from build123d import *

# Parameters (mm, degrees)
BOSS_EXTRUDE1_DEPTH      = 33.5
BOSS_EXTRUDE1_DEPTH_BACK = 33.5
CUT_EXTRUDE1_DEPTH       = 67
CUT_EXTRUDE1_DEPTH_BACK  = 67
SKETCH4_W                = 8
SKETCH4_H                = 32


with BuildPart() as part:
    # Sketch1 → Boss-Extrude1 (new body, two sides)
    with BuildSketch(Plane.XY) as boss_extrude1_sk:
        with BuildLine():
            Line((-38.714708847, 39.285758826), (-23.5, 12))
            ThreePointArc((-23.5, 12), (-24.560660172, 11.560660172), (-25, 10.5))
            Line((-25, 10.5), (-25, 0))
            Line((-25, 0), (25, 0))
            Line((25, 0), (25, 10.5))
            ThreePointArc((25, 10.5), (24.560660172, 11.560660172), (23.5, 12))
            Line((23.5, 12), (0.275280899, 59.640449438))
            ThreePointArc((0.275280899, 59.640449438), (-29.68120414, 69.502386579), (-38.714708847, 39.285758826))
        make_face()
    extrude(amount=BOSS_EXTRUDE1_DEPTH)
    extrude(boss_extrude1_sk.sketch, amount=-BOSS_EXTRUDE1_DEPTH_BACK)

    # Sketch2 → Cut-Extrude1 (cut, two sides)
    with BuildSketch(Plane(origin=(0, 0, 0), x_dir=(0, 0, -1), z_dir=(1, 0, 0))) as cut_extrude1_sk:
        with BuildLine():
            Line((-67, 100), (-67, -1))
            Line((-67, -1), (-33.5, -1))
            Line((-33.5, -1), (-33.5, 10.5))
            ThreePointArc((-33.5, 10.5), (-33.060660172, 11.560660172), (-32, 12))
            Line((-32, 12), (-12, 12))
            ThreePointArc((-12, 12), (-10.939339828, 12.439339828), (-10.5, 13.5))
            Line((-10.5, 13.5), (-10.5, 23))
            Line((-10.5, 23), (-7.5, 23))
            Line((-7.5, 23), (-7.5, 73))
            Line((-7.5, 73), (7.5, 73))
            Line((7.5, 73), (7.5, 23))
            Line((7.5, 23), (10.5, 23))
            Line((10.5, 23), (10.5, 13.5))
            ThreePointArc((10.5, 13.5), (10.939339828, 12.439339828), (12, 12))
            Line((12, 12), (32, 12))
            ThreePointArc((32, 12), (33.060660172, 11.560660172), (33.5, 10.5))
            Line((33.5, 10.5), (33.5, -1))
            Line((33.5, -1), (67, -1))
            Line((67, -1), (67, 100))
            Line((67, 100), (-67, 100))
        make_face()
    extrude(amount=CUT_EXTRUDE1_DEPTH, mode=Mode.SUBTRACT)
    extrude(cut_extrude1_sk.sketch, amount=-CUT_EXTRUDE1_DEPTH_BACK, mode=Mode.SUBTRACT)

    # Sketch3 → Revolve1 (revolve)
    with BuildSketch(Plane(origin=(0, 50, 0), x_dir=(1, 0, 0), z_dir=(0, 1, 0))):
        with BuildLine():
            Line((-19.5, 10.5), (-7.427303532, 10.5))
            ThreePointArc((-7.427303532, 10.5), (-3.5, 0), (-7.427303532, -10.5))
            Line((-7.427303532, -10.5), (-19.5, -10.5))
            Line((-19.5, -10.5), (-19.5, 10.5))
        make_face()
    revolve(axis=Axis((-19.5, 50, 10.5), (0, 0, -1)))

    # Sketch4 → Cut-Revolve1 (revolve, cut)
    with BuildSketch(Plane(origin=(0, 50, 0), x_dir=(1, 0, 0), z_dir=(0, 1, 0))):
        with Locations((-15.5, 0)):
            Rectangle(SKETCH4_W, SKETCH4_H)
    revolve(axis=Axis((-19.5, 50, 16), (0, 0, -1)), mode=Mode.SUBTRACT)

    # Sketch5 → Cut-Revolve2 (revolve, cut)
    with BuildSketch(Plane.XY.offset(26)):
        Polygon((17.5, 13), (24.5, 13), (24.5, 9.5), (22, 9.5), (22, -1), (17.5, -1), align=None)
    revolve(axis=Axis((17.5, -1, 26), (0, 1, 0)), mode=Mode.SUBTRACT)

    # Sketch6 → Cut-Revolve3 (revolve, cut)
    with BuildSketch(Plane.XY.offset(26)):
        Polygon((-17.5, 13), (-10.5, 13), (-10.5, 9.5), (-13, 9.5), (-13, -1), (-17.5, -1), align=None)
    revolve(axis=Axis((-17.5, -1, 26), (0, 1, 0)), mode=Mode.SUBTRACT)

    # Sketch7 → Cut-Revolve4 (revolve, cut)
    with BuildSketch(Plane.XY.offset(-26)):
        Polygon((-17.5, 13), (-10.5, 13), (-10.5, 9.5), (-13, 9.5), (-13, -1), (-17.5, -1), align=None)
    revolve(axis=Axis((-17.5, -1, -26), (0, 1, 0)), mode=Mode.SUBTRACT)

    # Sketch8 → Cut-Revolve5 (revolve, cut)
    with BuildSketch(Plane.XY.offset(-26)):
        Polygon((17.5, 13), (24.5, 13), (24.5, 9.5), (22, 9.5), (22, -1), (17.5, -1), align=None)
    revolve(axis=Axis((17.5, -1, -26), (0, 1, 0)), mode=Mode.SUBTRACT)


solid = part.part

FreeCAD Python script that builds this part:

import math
import FreeCAD as App
import Part
import Sketcher

V = App.Vector

doc = App.newDocument("Part")
body = doc.addObject("PartDesign::Body", "Body")

# Sketch on XY plane
sketch1 = doc.addObject("Sketcher::SketchObject", "Sketch")
body.addObject(sketch1)
sketch1.AttachmentSupport = (doc.XY_Plane, [""])
sketch1.MapMode = "FlatFace"
sketch1.addGeometry([
    Part.LineSegment(V(-38.7, 39.3, 0), V(-23.5, 12, 0)),  # 0
    Part.ArcOfCircle(Part.Circle(V(-23.5, 10.5, 0), V(0, 0, 1), 1.5), math.radians(90), math.radians(180)),  # 1
    Part.LineSegment(V(-25, 10.5, 0), V(-25, 0, 0)),  # 2
    Part.LineSegment(V(-25, 0, 0), V(25, 0, 0)),  # 3
    Part.LineSegment(V(25, 0, 0), V(25, 10.5, 0)),  # 4
    Part.ArcOfCircle(Part.Circle(V(23.5, 10.5, 0), V(0, 0, 1), 1.5), math.radians(0), math.radians(90)),  # 5
    Part.LineSegment(V(23.5, 12, 0), V(0.3, 59.6, 0)),  # 6
    Part.ArcOfCircle(Part.Circle(V(-19.5, 50, 0), V(0, 0, 1), 22), math.radians(26), math.radians(209)),  # 7
], False)
sketch1.addConstraint([
    Sketcher.Constraint("Coincident", 0, 2, 1, 1),
    Sketcher.Constraint("Tangent", 1, 2, 2, 1),
    Sketcher.Constraint("Coincident", 2, 2, 3, 1),
    Sketcher.Constraint("Coincident", 3, 2, 4, 1),
    Sketcher.Constraint("Tangent", 4, 2, 5, 1),
    Sketcher.Constraint("Coincident", 5, 2, 6, 1),
    Sketcher.Constraint("Tangent", 6, 2, 7, 1),
    Sketcher.Constraint("Tangent", 7, 2, 0, 1),
    Sketcher.Constraint("Vertical", 2),
    Sketcher.Constraint("Horizontal", 3),
    Sketcher.Constraint("Vertical", 4),
    Sketcher.Constraint("Equal", 1, 5),
    Sketcher.Constraint("Symmetric", 2, 2, 3, 2, -1, 1),
    Sketcher.Constraint("Symmetric", 0, 2, 5, 2, -2),
    Sketcher.Constraint("Vertical", 1, 3, 0, 2),
    Sketcher.Constraint("Radius", 7, 22.0),
    Sketcher.Constraint("Radius", 1, 1.5),
    Sketcher.Constraint("DistanceX", 3, 1, 3, 2, 50.0),
    Sketcher.Constraint("Distance", 6, 53.0),
    Sketcher.Constraint("DistanceY", 2, 2, 2, 1, 10.5),
    Sketcher.Constraint("DistanceY", -1, 1, 7, 3, 50.0),
])
pad1 = doc.addObject("PartDesign::Pad", "Pad")
body.addObject(pad1)
pad1.Profile = sketch1
pad1.Type = "TwoLengths"
pad1.Length = 33.5
pad1.Length2 = 33.5

# Sketch on YZ plane
sketch2 = doc.addObject("Sketcher::SketchObject", "Sketch001")
body.addObject(sketch2)
sketch2.AttachmentSupport = (doc.YZ_Plane, [""])
sketch2.MapMode = "FlatFace"
sketch2.addGeometry([
    Part.LineSegment(V(100, 67, 0), V(-1, 67, 0)),  # 0
    Part.LineSegment(V(-1, 67, 0), V(-1, 33.5, 0)),  # 1
    Part.LineSegment(V(-1, 33.5, 0), V(10.5, 33.5, 0)),  # 2
    Part.ArcOfCircle(Part.Circle(V(10.5, 32, 0), V(0, 0, 1), 1.5), math.radians(0), math.radians(90)),  # 3
    Part.LineSegment(V(12, 32, 0), V(12, 12, 0)),  # 4
    Part.ArcOfCircle(Part.Circle(V(13.5, 12, 0), V(0, 0, 1), 1.5), math.radians(180), math.radians(270)),  # 5
    Part.LineSegment(V(13.5, 10.5, 0), V(23, 10.5, 0)),  # 6
    Part.LineSegment(V(23, 10.5, 0), V(23, 7.5, 0)),  # 7
    Part.LineSegment(V(23, 7.5, 0), V(73, 7.5, 0)),  # 8
    Part.LineSegment(V(73, 7.5, 0), V(73, -7.5, 0)),  # 9
    Part.LineSegment(V(73, -7.5, 0), V(23, -7.5, 0)),  # 10
    Part.LineSegment(V(23, -7.5, 0), V(23, -10.5, 0)),  # 11
    Part.LineSegment(V(23, -10.5, 0), V(13.5, -10.5, 0)),  # 12
    Part.ArcOfCircle(Part.Circle(V(13.5, -12, 0), V(0, 0, 1), 1.5), math.radians(90), math.radians(180)),  # 13
    Part.LineSegment(V(12, -12, 0), V(12, -32, 0)),  # 14
    Part.ArcOfCircle(Part.Circle(V(10.5, -32, 0), V(0, 0, 1), 1.5), math.radians(-90), math.radians(0)),  # 15
    Part.LineSegment(V(10.5, -33.5, 0), V(-1, -33.5, 0)),  # 16
    Part.LineSegment(V(-1, -33.5, 0), V(-1, -67, 0)),  # 17
    Part.LineSegment(V(-1, -67, 0), V(100, -67, 0)),  # 18
    Part.LineSegment(V(100, -67, 0), V(100, 67, 0)),  # 19
], False)
sketch2.addConstraint([
    Sketcher.Constraint("Coincident", 0, 2, 1, 1),
    Sketcher.Constraint("Coincident", 1, 2, 2, 1),
    Sketcher.Constraint("Tangent", 2, 2, 3, 2),
    Sketcher.Constraint("Tangent", 3, 1, 4, 1),
    Sketcher.Constraint("Tangent", 4, 2, 5, 1),
    Sketcher.Constraint("Tangent", 5, 2, 6, 1),
    Sketcher.Constraint("Coincident", 6, 2, 7, 1),
    Sketcher.Constraint("Coincident", 7, 2, 8, 1),
    Sketcher.Constraint("Coincident", 8, 2, 9, 1),
    Sketcher.Constraint("Coincident", 9, 2, 10, 1),
    Sketcher.Constraint("Coincident", 10, 2, 11, 1),
    Sketcher.Constraint("Coincident", 11, 2, 12, 1),
    Sketcher.Constraint("Tangent", 12, 2, 13, 1),
    Sketcher.Constraint("Tangent", 13, 2, 14, 1),
    Sketcher.Constraint("Tangent", 14, 2, 15, 2),
    Sketcher.Constraint("Tangent", 15, 1, 16, 1),
    Sketcher.Constraint("Coincident", 16, 2, 17, 1),
    Sketcher.Constraint("Coincident", 17, 2, 18, 1),
    Sketcher.Constraint("Coincident", 18, 2, 19, 1),
    Sketcher.Constraint("Coincident", 19, 2, 0, 1),
    Sketcher.Constraint("Horizontal", 0),
    Sketcher.Constraint("Vertical", 1),
    Sketcher.Constraint("Horizontal", 2),
    Sketcher.Constraint("Vertical", 4),
    Sketcher.Constraint("Horizontal", 6),
    Sketcher.Constraint("Vertical", 7),
    Sketcher.Constraint("Horizontal", 8),
    Sketcher.Constraint("Vertical", 9),
    Sketcher.Constraint("Horizontal", 10),
    Sketcher.Constraint("Vertical", 11),
    Sketcher.Constraint("Horizontal", 12),
    Sketcher.Constraint("Vertical", 14),
    Sketcher.Constraint("Horizontal", 16),
    Sketcher.Constraint("Vertical", 17),
    Sketcher.Constraint("Horizontal", 18),
    Sketcher.Constraint("Vertical", 19),
    Sketcher.Constraint("Equal", 3, 5),
    Sketcher.Constraint("Equal", 5, 13),
    Sketcher.Constraint("Equal", 13, 15),
    Sketcher.Constraint("Symmetric", 5, 3, 13, 3, -1),
    Sketcher.Constraint("Symmetric", 7, 2, 10, 2, -1),
    Sketcher.Constraint("Symmetric", 1, 2, 16, 2, -1),
    Sketcher.Constraint("Equal", 1, 17),
    Sketcher.Constraint("Radius", 3, 1.5),
    Sketcher.Constraint("DistanceX", 0, 2, 0, 1, 101.0),
    Sketcher.Constraint("DistanceX", 8, 1, 8, 2, 50.0),
    Sketcher.Constraint("DistanceY", 4, 2, 4, 1, 20.0),
    Sketcher.Constraint("DistanceY", 7, 2, 7, 1, 3.0),
    Sketcher.Constraint("DistanceY", 9, 2, 9, 1, 15.0),
    Sketcher.Constraint("DistanceY", 19, 1, 19, 2, 134.0),
    Sketcher.Constraint("DistanceX", 2, 1, 2, 2, 11.5),
    Sketcher.Constraint("DistanceX", 6, 1, 6, 2, 9.5),
    Sketcher.Constraint("DistanceX", 0, 2, -1, 1, 1.0),
])
pocket1 = doc.addObject("PartDesign::Pocket", "Pocket")
body.addObject(pocket1)
pocket1.Profile = sketch2
pocket1.Type = "ThroughAll"
pocket1.Midplane = True

# Sketch on XZ plane
sketch3 = doc.addObject("Sketcher::SketchObject", "Sketch002")
body.addObject(sketch3)
sketch3.AttachmentSupport = (doc.XZ_Plane, [""])
sketch3.MapMode = "FlatFace"
sketch3.AttachmentOffset = App.Placement(V(0, 0, -50), App.Rotation())
sketch3.addGeometry([
    Part.LineSegment(V(-7, -10, 0), V(-20, -10, 0)),
    Part.LineSegment(V(-20, -10, 0), V(-20, 10, 0)),
    Part.LineSegment(V(-20, 10, 0), V(-7, 10, 0)),
    Part.ArcOfCircle(Part.Circle(V(-20, 0, 0), V(0, 0, 1), 16), math.radians(-41), math.radians(41)),
], False)
sketch3.addGeometry(Part.LineSegment(V(-20, 10, 0), V(-20, -10, 0)), True)  # axis
sketch3.addConstraint([
    Sketcher.Constraint("Coincident", 0, 2, 1, 1),
    Sketcher.Constraint("Coincident", 1, 2, 2, 1),
    Sketcher.Constraint("Coincident", 2, 2, 3, 2),
    Sketcher.Constraint("Coincident", 3, 1, 0, 1),
    Sketcher.Constraint("Horizontal", 0),
    Sketcher.Constraint("Vertical", 1),
    Sketcher.Constraint("Horizontal", 2),
    Sketcher.Constraint("Vertical", 4),
    Sketcher.Constraint("Coincident", 4, 1, 1, 2),
    Sketcher.Constraint("Symmetric", 2, 2, 3, 1, -1),
    Sketcher.Constraint("Horizontal", 3, 1, 4, 2),
    Sketcher.Constraint("Vertical", 3, 3, 0, 2),
    Sketcher.Constraint("Radius", 3, 16.0),
    Sketcher.Constraint("DistanceY", 1, 1, 1, 2, 21.0),
    Sketcher.Constraint("DistanceX", 3, 3, -1, 1, 19.5),
])
revolution = doc.addObject("PartDesign::Revolution", "Revolution")
body.addObject(revolution)
revolution.Profile = sketch3
revolution.ReferenceAxis = (sketch3, ["Axis0"])
revolution.Angle = 360

# Sketch on XZ plane
sketch4 = doc.addObject("Sketcher::SketchObject", "Sketch003")
body.addObject(sketch4)
sketch4.AttachmentSupport = (doc.XZ_Plane, [""])
sketch4.MapMode = "FlatFace"
sketch4.AttachmentOffset = App.Placement(V(0, 0, -50), App.Rotation())
sketch4.addGeometry([
    Part.LineSegment(V(-20, -16, 0), V(-20, 16, 0)),
    Part.LineSegment(V(-20, 16, 0), V(-12, 16, 0)),
    Part.LineSegment(V(-12, 16, 0), V(-12, -16, 0)),
    Part.LineSegment(V(-12, -16, 0), V(-20, -16, 0)),
], False)
sketch4.addGeometry(Part.LineSegment(V(-20, 16, 0), V(-20, -16, 0)), True)  # axis
sketch4.addConstraint([
    Sketcher.Constraint("Coincident", 0, 2, 1, 1),
    Sketcher.Constraint("Coincident", 1, 2, 2, 1),
    Sketcher.Constraint("Coincident", 2, 2, 3, 1),
    Sketcher.Constraint("Coincident", 3, 2, 0, 1),
    Sketcher.Constraint("Vertical", 0),
    Sketcher.Constraint("Horizontal", 1),
    Sketcher.Constraint("Vertical", 2),
    Sketcher.Constraint("Horizontal", 3),
    Sketcher.Constraint("Vertical", 4),
    Sketcher.Constraint("Coincident", 4, 1, 0, 2),
    Sketcher.Constraint("Horizontal", 2, 2, 4, 2),
    Sketcher.Constraint("DistanceX", 1, 1, 1, 2, 8.0),
    Sketcher.Constraint("DistanceY", 0, 1, 0, 2, 32.0),
    Sketcher.Constraint("DistanceY", -1, 1, 0, 2, 16.0),
    Sketcher.Constraint("DistanceX", 0, 2, -1, 1, 19.5),
])
groove = doc.addObject("PartDesign::Groove", "Groove")
body.addObject(groove)
groove.Profile = sketch4
groove.ReferenceAxis = (sketch4, ["Axis0"])
groove.Angle = 360

# Sketch on XY plane
sketch5 = doc.addObject("Sketcher::SketchObject", "Sketch004")
body.addObject(sketch5)
sketch5.AttachmentSupport = (doc.XY_Plane, [""])
sketch5.MapMode = "FlatFace"
sketch5.AttachmentOffset = App.Placement(V(0, 0, 26), App.Rotation())
sketch5.addGeometry([
    Part.LineSegment(V(24.5, 13, 0), V(17.5, 13, 0)),  # 0
    Part.LineSegment(V(17.5, 13, 0), V(17.5, -1, 0)),  # 1
    Part.LineSegment(V(17.5, -1, 0), V(22, -1, 0)),  # 2
    Part.LineSegment(V(22, -1, 0), V(22, 9.5, 0)),  # 3
    Part.LineSegment(V(22, 9.5, 0), V(24.5, 9.5, 0)),  # 4
    Part.LineSegment(V(24.5, 9.5, 0), V(24.5, 13, 0)),  # 5
], False)
sketch5.addGeometry(Part.LineSegment(V(17.5, -1, 0), V(17.5, 13, 0)), True)  # axis
sketch5.addConstraint([
    Sketcher.Constraint("Coincident", 0, 2, 1, 1),
    Sketcher.Constraint("Coincident", 1, 2, 2, 1),
    Sketcher.Constraint("Coincident", 2, 2, 3, 1),
    Sketcher.Constraint("Coincident", 3, 2, 4, 1),
    Sketcher.Constraint("Coincident", 4, 2, 5, 1),
    Sketcher.Constraint("Coincident", 5, 2, 0, 1),
    Sketcher.Constraint("Horizontal", 0),
    Sketcher.Constraint("Vertical", 1),
    Sketcher.Constraint("Horizontal", 2),
    Sketcher.Constraint("Vertical", 3),
    Sketcher.Constraint("Horizontal", 4),
    Sketcher.Constraint("Vertical", 5),
    Sketcher.Constraint("Vertical", 6),
    Sketcher.Constraint("Coincident", 6, 1, 1, 2),
    Sketcher.Constraint("Horizontal", 5, 2, 6, 2),
    Sketcher.Constraint("DistanceX", 0, 2, 0, 1, 7.0),
    Sketcher.Constraint("DistanceY", 1, 2, 1, 1, 14.0),
    Sketcher.Constraint("DistanceX", 2, 1, 2, 2, 4.5),
    Sketcher.Constraint("DistanceY", 3, 1, 3, 2, 10.5),
    Sketcher.Constraint("DistanceY", -1, 1, 0, 2, 13.0),
    Sketcher.Constraint("DistanceX", -1, 1, 2, 2, 22.0),
])
groove2 = doc.addObject("PartDesign::Groove", "Groove001")
body.addObject(groove2)
groove2.Profile = sketch5
groove2.ReferenceAxis = (sketch5, ["Axis0"])
groove2.Angle = 360

# Sketch on XY plane
sketch6 = doc.addObject("Sketcher::SketchObject", "Sketch005")
body.addObject(sketch6)
sketch6.AttachmentSupport = (doc.XY_Plane, [""])
sketch6.MapMode = "FlatFace"
sketch6.AttachmentOffset = App.Placement(V(0, 0, 26), App.Rotation())
sketch6.addGeometry([
    Part.LineSegment(V(-10.5, 13, 0), V(-17.5, 13, 0)),  # 0
    Part.LineSegment(V(-17.5, 13, 0), V(-17.5, -1, 0)),  # 1
    Part.LineSegment(V(-17.5, -1, 0), V(-13, -1, 0)),  # 2
    Part.LineSegment(V(-13, -1, 0), V(-13, 9.5, 0)),  # 3
    Part.LineSegment(V(-13, 9.5, 0), V(-10.5, 9.5, 0)),  # 4
    Part.LineSegment(V(-10.5, 9.5, 0), V(-10.5, 13, 0)),  # 5
], False)
sketch6.addGeometry(Part.LineSegment(V(-17.5, -1, 0), V(-17.5, 13, 0)), True)  # axis
sketch6.addConstraint([
    Sketcher.Constraint("Coincident", 0, 2, 1, 1),
    Sketcher.Constraint("Coincident", 1, 2, 2, 1),
    Sketcher.Constraint("Coincident", 2, 2, 3, 1),
    Sketcher.Constraint("Coincident", 3, 2, 4, 1),
    Sketcher.Constraint("Coincident", 4, 2, 5, 1),
    Sketcher.Constraint("Coincident", 5, 2, 0, 1),
    Sketcher.Constraint("Horizontal", 0),
    Sketcher.Constraint("Vertical", 1),
    Sketcher.Constraint("Horizontal", 2),
    Sketcher.Constraint("Vertical", 3),
    Sketcher.Constraint("Horizontal", 4),
    Sketcher.Constraint("Vertical", 5),
    Sketcher.Constraint("Vertical", 6),
    Sketcher.Constraint("Coincident", 6, 1, 1, 2),
    Sketcher.Constraint("Horizontal", 5, 2, 6, 2),
    Sketcher.Constraint("DistanceX", 0, 2, 0, 1, 7.0),
    Sketcher.Constraint("DistanceY", 1, 2, 1, 1, 14.0),
    Sketcher.Constraint("DistanceX", 2, 1, 2, 2, 4.5),
    Sketcher.Constraint("DistanceY", 3, 1, 3, 2, 10.5),
    Sketcher.Constraint("DistanceY", -1, 1, 0, 2, 13.0),
    Sketcher.Constraint("DistanceX", 2, 2, -1, 1, 13.0),
])
groove3 = doc.addObject("PartDesign::Groove", "Groove002")
body.addObject(groove3)
groove3.Profile = sketch6
groove3.ReferenceAxis = (sketch6, ["Axis0"])
groove3.Angle = 360

# Sketch on XY plane
sketch7 = doc.addObject("Sketcher::SketchObject", "Sketch006")
body.addObject(sketch7)
sketch7.AttachmentSupport = (doc.XY_Plane, [""])
sketch7.MapMode = "FlatFace"
sketch7.AttachmentOffset = App.Placement(V(0, 0, -26), App.Rotation())
sketch7.addGeometry([
    Part.LineSegment(V(-10.5, 13, 0), V(-17.5, 13, 0)),  # 0
    Part.LineSegment(V(-17.5, 13, 0), V(-17.5, -1, 0)),  # 1
    Part.LineSegment(V(-17.5, -1, 0), V(-13, -1, 0)),  # 2
    Part.LineSegment(V(-13, -1, 0), V(-13, 9.5, 0)),  # 3
    Part.LineSegment(V(-13, 9.5, 0), V(-10.5, 9.5, 0)),  # 4
    Part.LineSegment(V(-10.5, 9.5, 0), V(-10.5, 13, 0)),  # 5
], False)
sketch7.addGeometry(Part.LineSegment(V(-17.5, -1, 0), V(-17.5, 13, 0)), True)  # axis
sketch7.addConstraint([
    Sketcher.Constraint("Coincident", 0, 2, 1, 1),
    Sketcher.Constraint("Coincident", 1, 2, 2, 1),
    Sketcher.Constraint("Coincident", 2, 2, 3, 1),
    Sketcher.Constraint("Coincident", 3, 2, 4, 1),
    Sketcher.Constraint("Coincident", 4, 2, 5, 1),
    Sketcher.Constraint("Coincident", 5, 2, 0, 1),
    Sketcher.Constraint("Horizontal", 0),
    Sketcher.Constraint("Vertical", 1),
    Sketcher.Constraint("Horizontal", 2),
    Sketcher.Constraint("Vertical", 3),
    Sketcher.Constraint("Horizontal", 4),
    Sketcher.Constraint("Vertical", 5),
    Sketcher.Constraint("Vertical", 6),
    Sketcher.Constraint("Coincident", 6, 1, 1, 2),
    Sketcher.Constraint("Horizontal", 5, 2, 6, 2),
    Sketcher.Constraint("DistanceX", 0, 2, 0, 1, 7.0),
    Sketcher.Constraint("DistanceY", 1, 2, 1, 1, 14.0),
    Sketcher.Constraint("DistanceX", 2, 1, 2, 2, 4.5),
    Sketcher.Constraint("DistanceY", 3, 1, 3, 2, 10.5),
    Sketcher.Constraint("DistanceY", -1, 1, 0, 2, 13.0),
    Sketcher.Constraint("DistanceX", 2, 2, -1, 1, 13.0),
])
groove4 = doc.addObject("PartDesign::Groove", "Groove003")
body.addObject(groove4)
groove4.Profile = sketch7
groove4.ReferenceAxis = (sketch7, ["Axis0"])
groove4.Angle = 360

# Sketch on XY plane
sketch8 = doc.addObject("Sketcher::SketchObject", "Sketch007")
body.addObject(sketch8)
sketch8.AttachmentSupport = (doc.XY_Plane, [""])
sketch8.MapMode = "FlatFace"
sketch8.AttachmentOffset = App.Placement(V(0, 0, -26), App.Rotation())
sketch8.addGeometry([
    Part.LineSegment(V(24.5, 13, 0), V(17.5, 13, 0)),  # 0
    Part.LineSegment(V(17.5, 13, 0), V(17.5, -1, 0)),  # 1
    Part.LineSegment(V(17.5, -1, 0), V(22, -1, 0)),  # 2
    Part.LineSegment(V(22, -1, 0), V(22, 9.5, 0)),  # 3
    Part.LineSegment(V(22, 9.5, 0), V(24.5, 9.5, 0)),  # 4
    Part.LineSegment(V(24.5, 9.5, 0), V(24.5, 13, 0)),  # 5
], False)
sketch8.addGeometry(Part.LineSegment(V(17.5, -1, 0), V(17.5, 13, 0)), True)  # axis
sketch8.addConstraint([
    Sketcher.Constraint("Coincident", 0, 2, 1, 1),
    Sketcher.Constraint("Coincident", 1, 2, 2, 1),
    Sketcher.Constraint("Coincident", 2, 2, 3, 1),
    Sketcher.Constraint("Coincident", 3, 2, 4, 1),
    Sketcher.Constraint("Coincident", 4, 2, 5, 1),
    Sketcher.Constraint("Coincident", 5, 2, 0, 1),
    Sketcher.Constraint("Horizontal", 0),
    Sketcher.Constraint("Vertical", 1),
    Sketcher.Constraint("Horizontal", 2),
    Sketcher.Constraint("Vertical", 3),
    Sketcher.Constraint("Horizontal", 4),
    Sketcher.Constraint("Vertical", 5),
    Sketcher.Constraint("Vertical", 6),
    Sketcher.Constraint("Coincident", 6, 1, 1, 2),
    Sketcher.Constraint("Horizontal", 5, 2, 6, 2),
    Sketcher.Constraint("DistanceX", 0, 2, 0, 1, 7.0),
    Sketcher.Constraint("DistanceY", 1, 2, 1, 1, 14.0),
    Sketcher.Constraint("DistanceX", 2, 1, 2, 2, 4.5),
    Sketcher.Constraint("DistanceY", 3, 1, 3, 2, 10.5),
    Sketcher.Constraint("DistanceY", -1, 1, 0, 2, 13.0),
    Sketcher.Constraint("DistanceX", -1, 1, 2, 2, 22.0),
])
groove5 = doc.addObject("PartDesign::Groove", "Groove004")
body.addObject(groove5)
groove5.Profile = sketch8
groove5.ReferenceAxis = (sketch8, ["Axis0"])
groove5.Angle = 360

doc.recompute()
